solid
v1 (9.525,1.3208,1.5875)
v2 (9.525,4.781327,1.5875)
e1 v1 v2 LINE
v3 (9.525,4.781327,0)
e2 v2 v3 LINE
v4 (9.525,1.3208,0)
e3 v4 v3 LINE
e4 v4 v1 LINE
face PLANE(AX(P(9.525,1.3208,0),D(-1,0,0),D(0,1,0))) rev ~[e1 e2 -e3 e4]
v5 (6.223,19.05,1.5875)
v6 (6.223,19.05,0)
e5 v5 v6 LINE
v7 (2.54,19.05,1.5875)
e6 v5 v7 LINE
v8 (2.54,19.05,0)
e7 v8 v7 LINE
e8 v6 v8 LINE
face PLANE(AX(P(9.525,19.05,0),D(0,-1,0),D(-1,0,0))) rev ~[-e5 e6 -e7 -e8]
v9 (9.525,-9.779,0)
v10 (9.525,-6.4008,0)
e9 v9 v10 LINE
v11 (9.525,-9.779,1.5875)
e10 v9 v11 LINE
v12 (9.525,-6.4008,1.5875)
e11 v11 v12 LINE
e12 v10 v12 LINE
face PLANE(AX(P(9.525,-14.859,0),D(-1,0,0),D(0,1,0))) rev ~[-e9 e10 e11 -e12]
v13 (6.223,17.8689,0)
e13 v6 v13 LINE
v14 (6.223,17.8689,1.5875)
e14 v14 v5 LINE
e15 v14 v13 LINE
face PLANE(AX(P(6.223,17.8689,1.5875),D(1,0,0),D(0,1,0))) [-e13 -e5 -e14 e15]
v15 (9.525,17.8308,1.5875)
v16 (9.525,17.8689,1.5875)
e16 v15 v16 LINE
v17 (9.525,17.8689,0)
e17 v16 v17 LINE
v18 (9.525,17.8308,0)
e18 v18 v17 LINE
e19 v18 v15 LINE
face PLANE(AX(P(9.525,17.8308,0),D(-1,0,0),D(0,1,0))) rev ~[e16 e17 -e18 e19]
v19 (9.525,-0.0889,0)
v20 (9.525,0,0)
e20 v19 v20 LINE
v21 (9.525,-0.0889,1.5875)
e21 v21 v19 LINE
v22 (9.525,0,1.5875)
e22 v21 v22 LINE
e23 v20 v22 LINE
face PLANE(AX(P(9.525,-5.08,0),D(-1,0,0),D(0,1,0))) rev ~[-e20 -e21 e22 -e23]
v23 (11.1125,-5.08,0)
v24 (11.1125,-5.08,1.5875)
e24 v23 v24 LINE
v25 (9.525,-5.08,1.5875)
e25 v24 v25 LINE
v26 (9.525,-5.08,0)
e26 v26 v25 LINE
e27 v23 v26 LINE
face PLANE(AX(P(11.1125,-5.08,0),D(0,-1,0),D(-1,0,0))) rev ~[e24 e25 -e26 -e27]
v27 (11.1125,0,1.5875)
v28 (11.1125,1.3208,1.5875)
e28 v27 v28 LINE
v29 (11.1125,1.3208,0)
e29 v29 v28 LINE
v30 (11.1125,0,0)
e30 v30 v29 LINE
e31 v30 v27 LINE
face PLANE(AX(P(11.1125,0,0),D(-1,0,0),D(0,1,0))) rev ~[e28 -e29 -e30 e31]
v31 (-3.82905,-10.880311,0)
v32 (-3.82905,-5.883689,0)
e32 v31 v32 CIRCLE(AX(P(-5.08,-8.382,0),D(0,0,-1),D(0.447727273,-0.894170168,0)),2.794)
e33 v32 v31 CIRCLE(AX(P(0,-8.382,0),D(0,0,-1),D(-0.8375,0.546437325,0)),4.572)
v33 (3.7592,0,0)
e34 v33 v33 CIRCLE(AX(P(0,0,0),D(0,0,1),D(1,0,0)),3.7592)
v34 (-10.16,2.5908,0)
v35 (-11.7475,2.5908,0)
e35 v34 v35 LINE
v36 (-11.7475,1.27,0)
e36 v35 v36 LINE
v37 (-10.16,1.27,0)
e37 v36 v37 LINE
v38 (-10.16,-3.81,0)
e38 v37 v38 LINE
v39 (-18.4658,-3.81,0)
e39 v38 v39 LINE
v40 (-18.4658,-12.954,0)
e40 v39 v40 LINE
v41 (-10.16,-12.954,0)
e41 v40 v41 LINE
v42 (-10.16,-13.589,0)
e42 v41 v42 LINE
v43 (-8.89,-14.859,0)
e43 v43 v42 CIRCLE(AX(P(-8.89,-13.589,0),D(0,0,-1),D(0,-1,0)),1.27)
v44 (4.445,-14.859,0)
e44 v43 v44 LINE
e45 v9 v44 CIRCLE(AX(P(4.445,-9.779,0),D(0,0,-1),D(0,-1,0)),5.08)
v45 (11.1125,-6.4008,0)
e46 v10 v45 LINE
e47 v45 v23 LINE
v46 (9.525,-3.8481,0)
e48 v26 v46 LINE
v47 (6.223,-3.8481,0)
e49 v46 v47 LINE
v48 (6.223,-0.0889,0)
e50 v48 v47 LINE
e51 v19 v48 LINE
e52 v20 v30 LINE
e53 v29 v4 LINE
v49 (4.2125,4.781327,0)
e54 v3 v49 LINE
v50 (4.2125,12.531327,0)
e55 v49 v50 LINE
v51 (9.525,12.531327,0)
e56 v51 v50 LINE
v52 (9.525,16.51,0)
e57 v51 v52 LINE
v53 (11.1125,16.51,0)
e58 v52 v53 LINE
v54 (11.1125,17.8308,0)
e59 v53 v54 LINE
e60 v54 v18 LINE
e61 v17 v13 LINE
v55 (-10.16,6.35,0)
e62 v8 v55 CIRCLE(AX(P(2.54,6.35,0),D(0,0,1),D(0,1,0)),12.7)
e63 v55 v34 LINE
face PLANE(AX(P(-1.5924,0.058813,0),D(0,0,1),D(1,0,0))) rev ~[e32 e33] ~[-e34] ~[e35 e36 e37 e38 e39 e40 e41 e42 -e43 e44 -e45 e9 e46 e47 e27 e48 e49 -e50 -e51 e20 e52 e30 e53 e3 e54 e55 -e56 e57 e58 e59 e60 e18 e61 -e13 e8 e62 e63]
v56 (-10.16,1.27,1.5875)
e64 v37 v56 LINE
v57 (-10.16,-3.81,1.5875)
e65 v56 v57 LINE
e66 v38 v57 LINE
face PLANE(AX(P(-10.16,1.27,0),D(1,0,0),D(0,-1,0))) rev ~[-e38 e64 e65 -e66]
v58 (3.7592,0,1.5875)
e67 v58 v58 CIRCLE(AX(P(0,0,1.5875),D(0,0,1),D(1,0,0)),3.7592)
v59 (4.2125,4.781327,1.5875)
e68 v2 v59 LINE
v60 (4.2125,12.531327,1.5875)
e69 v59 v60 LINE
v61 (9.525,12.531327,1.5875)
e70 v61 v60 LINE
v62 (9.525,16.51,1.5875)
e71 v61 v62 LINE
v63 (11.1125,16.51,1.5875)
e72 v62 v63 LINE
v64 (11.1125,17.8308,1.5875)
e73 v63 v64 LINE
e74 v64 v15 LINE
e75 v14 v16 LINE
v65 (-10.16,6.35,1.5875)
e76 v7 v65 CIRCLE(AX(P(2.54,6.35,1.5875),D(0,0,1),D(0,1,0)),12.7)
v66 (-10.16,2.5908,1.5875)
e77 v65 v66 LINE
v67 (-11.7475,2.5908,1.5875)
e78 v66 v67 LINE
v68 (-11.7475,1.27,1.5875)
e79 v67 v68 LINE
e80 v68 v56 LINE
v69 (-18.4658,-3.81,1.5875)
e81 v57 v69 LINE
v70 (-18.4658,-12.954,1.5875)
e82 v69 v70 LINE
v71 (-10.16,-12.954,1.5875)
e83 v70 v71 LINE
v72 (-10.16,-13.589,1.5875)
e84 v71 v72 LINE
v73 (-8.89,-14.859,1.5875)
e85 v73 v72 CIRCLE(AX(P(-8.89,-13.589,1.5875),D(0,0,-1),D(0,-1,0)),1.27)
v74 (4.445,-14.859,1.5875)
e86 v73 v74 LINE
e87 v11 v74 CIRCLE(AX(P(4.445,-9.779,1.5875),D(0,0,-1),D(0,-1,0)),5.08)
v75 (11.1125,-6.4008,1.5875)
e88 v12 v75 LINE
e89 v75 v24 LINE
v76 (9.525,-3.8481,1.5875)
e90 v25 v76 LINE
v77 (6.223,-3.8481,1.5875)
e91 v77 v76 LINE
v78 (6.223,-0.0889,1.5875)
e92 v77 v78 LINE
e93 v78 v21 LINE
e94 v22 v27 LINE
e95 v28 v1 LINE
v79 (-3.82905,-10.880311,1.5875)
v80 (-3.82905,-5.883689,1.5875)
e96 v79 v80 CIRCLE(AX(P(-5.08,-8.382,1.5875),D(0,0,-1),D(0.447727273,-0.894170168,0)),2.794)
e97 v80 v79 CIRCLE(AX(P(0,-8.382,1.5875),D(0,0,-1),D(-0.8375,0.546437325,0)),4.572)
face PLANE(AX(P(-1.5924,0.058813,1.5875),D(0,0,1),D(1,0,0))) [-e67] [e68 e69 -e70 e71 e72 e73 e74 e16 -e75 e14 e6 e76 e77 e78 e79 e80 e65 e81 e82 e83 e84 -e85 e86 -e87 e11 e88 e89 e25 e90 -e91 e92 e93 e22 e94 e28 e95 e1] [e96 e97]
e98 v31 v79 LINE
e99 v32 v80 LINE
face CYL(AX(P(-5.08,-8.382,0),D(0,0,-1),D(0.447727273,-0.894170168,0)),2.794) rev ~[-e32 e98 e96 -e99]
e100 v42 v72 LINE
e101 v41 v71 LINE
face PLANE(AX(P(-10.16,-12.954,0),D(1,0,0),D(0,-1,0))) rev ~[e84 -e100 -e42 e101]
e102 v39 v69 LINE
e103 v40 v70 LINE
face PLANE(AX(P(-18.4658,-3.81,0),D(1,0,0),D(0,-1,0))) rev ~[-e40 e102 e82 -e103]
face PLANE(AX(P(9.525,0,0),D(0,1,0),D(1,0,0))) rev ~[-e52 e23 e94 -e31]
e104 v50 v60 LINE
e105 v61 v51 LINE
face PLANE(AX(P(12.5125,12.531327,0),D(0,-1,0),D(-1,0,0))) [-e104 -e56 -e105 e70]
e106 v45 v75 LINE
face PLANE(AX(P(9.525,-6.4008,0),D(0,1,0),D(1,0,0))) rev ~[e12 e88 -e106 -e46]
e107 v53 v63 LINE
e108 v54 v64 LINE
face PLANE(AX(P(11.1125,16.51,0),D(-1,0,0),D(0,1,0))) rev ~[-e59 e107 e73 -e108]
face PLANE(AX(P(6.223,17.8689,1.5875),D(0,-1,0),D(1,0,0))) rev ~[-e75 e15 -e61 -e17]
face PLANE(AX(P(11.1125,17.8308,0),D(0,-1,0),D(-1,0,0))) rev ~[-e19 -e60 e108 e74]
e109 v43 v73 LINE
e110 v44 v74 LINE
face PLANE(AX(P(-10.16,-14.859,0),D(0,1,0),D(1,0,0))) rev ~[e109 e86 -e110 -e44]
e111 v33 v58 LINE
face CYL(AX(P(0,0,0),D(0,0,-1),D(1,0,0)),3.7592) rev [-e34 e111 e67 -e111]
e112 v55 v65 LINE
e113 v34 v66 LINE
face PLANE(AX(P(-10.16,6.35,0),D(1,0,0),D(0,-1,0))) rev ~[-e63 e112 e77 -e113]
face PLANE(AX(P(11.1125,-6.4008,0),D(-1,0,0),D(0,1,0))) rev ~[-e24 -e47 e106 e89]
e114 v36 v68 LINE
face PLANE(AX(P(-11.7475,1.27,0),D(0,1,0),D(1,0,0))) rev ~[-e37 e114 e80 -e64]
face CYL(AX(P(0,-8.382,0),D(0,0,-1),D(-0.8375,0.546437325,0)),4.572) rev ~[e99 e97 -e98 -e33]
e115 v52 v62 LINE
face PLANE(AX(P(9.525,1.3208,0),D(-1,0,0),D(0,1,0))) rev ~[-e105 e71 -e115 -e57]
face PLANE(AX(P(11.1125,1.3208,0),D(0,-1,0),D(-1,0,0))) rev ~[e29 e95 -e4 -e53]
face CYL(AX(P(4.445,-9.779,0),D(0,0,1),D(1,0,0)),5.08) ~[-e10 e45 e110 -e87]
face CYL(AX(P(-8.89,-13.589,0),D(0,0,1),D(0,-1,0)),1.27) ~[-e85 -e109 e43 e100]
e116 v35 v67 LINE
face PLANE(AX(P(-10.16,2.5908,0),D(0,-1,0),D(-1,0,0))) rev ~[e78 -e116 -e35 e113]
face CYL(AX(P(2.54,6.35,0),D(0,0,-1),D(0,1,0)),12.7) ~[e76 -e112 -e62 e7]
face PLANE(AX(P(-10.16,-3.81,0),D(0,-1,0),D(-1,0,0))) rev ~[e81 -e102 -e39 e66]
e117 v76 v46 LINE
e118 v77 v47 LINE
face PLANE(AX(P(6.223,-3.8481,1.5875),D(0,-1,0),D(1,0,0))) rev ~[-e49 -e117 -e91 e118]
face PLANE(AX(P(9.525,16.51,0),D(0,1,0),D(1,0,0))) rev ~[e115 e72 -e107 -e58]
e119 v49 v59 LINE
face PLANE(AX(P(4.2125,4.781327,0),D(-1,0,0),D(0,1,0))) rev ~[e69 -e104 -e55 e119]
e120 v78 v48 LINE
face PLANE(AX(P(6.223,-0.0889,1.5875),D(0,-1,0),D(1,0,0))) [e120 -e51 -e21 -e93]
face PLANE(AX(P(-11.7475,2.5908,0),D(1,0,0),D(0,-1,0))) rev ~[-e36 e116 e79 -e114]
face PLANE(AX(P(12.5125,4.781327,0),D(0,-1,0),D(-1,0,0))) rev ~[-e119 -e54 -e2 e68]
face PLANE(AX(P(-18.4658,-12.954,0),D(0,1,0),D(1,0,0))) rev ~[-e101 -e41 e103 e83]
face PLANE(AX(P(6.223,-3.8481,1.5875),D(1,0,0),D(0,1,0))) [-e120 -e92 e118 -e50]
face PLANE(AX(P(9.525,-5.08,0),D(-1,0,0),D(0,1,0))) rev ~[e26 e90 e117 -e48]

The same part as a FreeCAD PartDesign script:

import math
import FreeCAD as App
import Part
import Sketcher

V = App.Vector
Q = App.Units.Quantity


def edges_at(feature, points):
    """Names of the edges that pass closest to the given points."""
    edges = feature.Shape.Edges
    near = lambda p: min(range(len(edges)), key=lambda i: edges[i].distToShape(Part.Vertex(*p))[0])
    return sorted({f"Edge{near(p) + 1}" for p in points})


def add_polygon(sketch, points):
    """Adds a closed chain of lines whose ends are joined by coincident constraints."""
    first, n = sketch.GeometryCount, len(points)
    for a, b in zip(points, points[1:] + points[:1]):
        sketch.addGeometry(Part.LineSegment(App.Vector(*a, 0), App.Vector(*b, 0)), False)
    for i in range(n):
        sketch.addConstraint(Sketcher.Constraint("Coincident", first + i, 2, first + (i + 1) % n, 1))

doc = App.newDocument("Part")
params = doc.addObject("Spreadsheet::Sheet", "Params")
for row, (alias, value) in enumerate([
    ("sketch1_radius", "0.5 in"),
    ("sketch1_radius2", "0.11 in"),
    ("sketch1_radius3", "0.18 in"),
    ("sketch1_diameter", "0.296 in"),
    ("sketch1_height", "0.2 in"),
    ("pad1_length", "0.0625 in"),
    ("sketch2_width", "0.13 in"),
    ("sketch2_height", "0.148 in"),
    ("sketch3_width", "0.13 in"),
    ("sketch3_height", "0.148 in"),
    ("pocket2_length", "0.0625 in"),
    ("fillet_radius", "0.2 in"),
    ("fillet2_radius", "0.05 in"),
], start=1):
    params.set(f"A{row}", alias)
    params.set(f"B{row}", "=" + value)
    params.setAlias(f"B{row}", alias)

body = doc.addObject("PartDesign::Body", "Body")

# Sketch on XY plane
sketch1 = body.newObject("Sketcher::SketchObject", "Sketch")
sketch1.AttachmentSupport = (doc.getObject("XY_Plane"), [""])
sketch1.MapMode = "FlatFace"
sketch1.addGeometry(Part.LineSegment(V(11.1125, 17.8308, 0), V(9.525, 17.8308, 0)), False)
sketch1.addGeometry(Part.LineSegment(V(9.525, 17.8308, 0), V(9.525, 19.05, 0)), False)
sketch1.addGeometry(Part.LineSegment(V(9.525, 19.05, 0), V(2.54, 19.05, 0)), False)
sketch1.addGeometry(Part.ArcOfCircle(Part.Circle(V(2.54, 6.35, 0), V(0, 0, 1), 12.7), math.radians(90), math.radians(180)), False)
sketch1.addGeometry(Part.LineSegment(V(-10.16, 6.35, 0), V(-10.16, 2.5908, 0)), False)
sketch1.addGeometry(Part.LineSegment(V(-10.16, 2.5908, 0), V(-11.7475, 2.5908, 0)), False)
sketch1.addGeometry(Part.LineSegment(V(-11.7475, 2.5908, 0), V(-11.7475, 1.27, 0)), False)
sketch1.addGeometry(Part.LineSegment(V(-11.7475, 1.27, 0), V(-10.16, 1.27, 0)), False)
sketch1.addGeometry(Part.LineSegment(V(-10.16, 1.27, 0), V(-10.16, -3.81, 0)), False)
sketch1.addGeometry(Part.LineSegment(V(-10.16, -3.81, 0), V(-18.4658, -3.81, 0)), False)
sketch1.addGeometry(Part.LineSegment(V(-18.4658, -3.81, 0), V(-18.4658, -12.954, 0)), False)
sketch1.addGeometry(Part.LineSegment(V(-18.4658, -12.954, 0), V(-10.16, -12.954, 0)), False)
sketch1.addGeometry(Part.LineSegment(V(-10.16, -12.954, 0), V(-10.16, -14.859, 0)), False)
sketch1.addGeometry(Part.LineSegment(V(-10.16, -14.859, 0), V(9.525, -14.859, 0)), False)
sketch1.addGeometry(Part.LineSegment(V(9.525, -14.859, 0), V(9.525, -6.4008, 0)), False)
sketch1.addGeometry(Part.LineSegment(V(9.525, -6.4008, 0), V(11.1125, -6.4008, 0)), False)
sketch1.addGeometry(Part.LineSegment(V(11.1125, -6.4008, 0), V(11.1125, -5.08, 0)), False)
sketch1.addGeometry(Part.LineSegment(V(11.1125, -5.08, 0), V(9.525, -5.08, 0)), False)
sketch1.addGeometry(Part.LineSegment(V(9.525, -5.08, 0), V(9.525, 0, 0)), False)
sketch1.addGeometry(Part.LineSegment(V(9.525, 0, 0), V(11.1125, 0, 0)), False)
sketch1.addGeometry(Part.LineSegment(V(11.1125, 0, 0), V(11.1125, 1.3208, 0)), False)
sketch1.addGeometry(Part.LineSegment(V(11.1125, 1.3208, 0), V(9.525, 1.3208, 0)), False)
sketch1.addGeometry(Part.LineSegment(V(9.525, 1.3208, 0), V(9.525, 16.51, 0)), False)
sketch1.addGeometry(Part.LineSegment(V(9.525, 16.51, 0), V(11.1125, 16.51, 0)), False)
sketch1.addGeometry(Part.LineSegment(V(11.1125, 16.51, 0), V(11.1125, 17.8308, 0)), False)
sketch1.addGeometry(Part.ArcOfCircle(Part.Circle(V(-5.08, -8.382, 0), V(0, 0, 1), 2.794), math.radians(63.402039), math.radians(296.597961)), False)
sketch1.addGeometry(Part.ArcOfCircle(Part.Circle(V(0, -8.382, 0), V(0, 0, 1), 4.572), math.radians(-146.87706), math.radians(146.87706)), False)
sketch1.addGeometry(Part.Circle(V(0, 0, 0), V(0, 0, 1), 3.7592), False)
sketch1.addConstraint(Sketcher.Constraint("Coincident", 0, 2, 1, 1))
sketch1.addConstraint(Sketcher.Constraint("Coincident", 1, 2, 2, 1))
sketch1.addConstraint(Sketcher.Constraint("Tangent", 2, 2, 3, 1))
sketch1.addConstraint(Sketcher.Constraint("Tangent", 3, 2, 4, 1))
sketch1.addConstraint(Sketcher.Constraint("Coincident", 4, 2, 5, 1))
sketch1.addConstraint(Sketcher.Constraint("Coincident", 5, 2, 6, 1))
sketch1.addConstraint(Sketcher.Constraint("Coincident", 6, 2, 7, 1))
sketch1.addConstraint(Sketcher.Constraint("Coincident", 7, 2, 8, 1))
sketch1.addConstraint(Sketcher.Constraint("Coincident", 8, 2, 9, 1))
sketch1.addConstraint(Sketcher.Constraint("Coincident", 9, 2, 10, 1))
sketch1.addConstraint(Sketcher.Constraint("Coincident", 10, 2, 11, 1))
sketch1.addConstraint(Sketcher.Constraint("Coincident", 11, 2, 12, 1))
sketch1.addConstraint(Sketcher.Constraint("Coincident", 12, 2, 13, 1))
sketch1.addConstraint(Sketcher.Constraint("Coincident", 13, 2, 14, 1))
sketch1.addConstraint(Sketcher.Constraint("Coincident", 14, 2, 15, 1))
sketch1.addConstraint(Sketcher.Constraint("Coincident", 15, 2, 16, 1))
sketch1.addConstraint(Sketcher.Constraint("Coincident", 16, 2, 17, 1))
sketch1.addConstraint(Sketcher.Constraint("Coincident", 17, 2, 18, 1))
sketch1.addConstraint(Sketcher.Constraint("Coincident", 18, 2, 19, 1))
sketch1.addConstraint(Sketcher.Constraint("Coincident", 19, 2, 20, 1))
sketch1.addConstraint(Sketcher.Constraint("Coincident", 20, 2, 21, 1))
sketch1.addConstraint(Sketcher.Constraint("Coincident", 21, 2, 22, 1))
sketch1.addConstraint(Sketcher.Constraint("Coincident", 22, 2, 23, 1))
sketch1.addConstraint(Sketcher.Constraint("Coincident", 23, 2, 24, 1))
sketch1.addConstraint(Sketcher.Constraint("Coincident", 24, 2, 0, 1))
sketch1.addConstraint(Sketcher.Constraint("Coincident", 25, 1, 26, 2))
sketch1.addConstraint(Sketcher.Constraint("Coincident", 26, 1, 25, 2))
sketch1.addConstraint(Sketcher.Constraint("Horizontal", 0))
sketch1.addConstraint(Sketcher.Constraint("Vertical", 1))
sketch1.addConstraint(Sketcher.Constraint("Horizontal", 2))
sketch1.addConstraint(Sketcher.Constraint("Vertical", 4))
sketch1.addConstraint(Sketcher.Constraint("Horizontal", 5))
sketch1.addConstraint(Sketcher.Constraint("Vertical", 6))
sketch1.addConstraint(Sketcher.Constraint("Horizontal", 7))
sketch1.addConstraint(Sketcher.Constraint("Vertical", 8))
sketch1.addConstraint(Sketcher.Constraint("Horizontal", 9))
sketch1.addConstraint(Sketcher.Constraint("Vertical", 10))
sketch1.addConstraint(Sketcher.Constraint("Horizontal", 11))
sketch1.addConstraint(Sketcher.Constraint("Vertical", 12))
sketch1.addConstraint(Sketcher.Constraint("Horizontal", 13))
sketch1.addConstraint(Sketcher.Constraint("Vertical", 14))
sketch1.addConstraint(Sketcher.Constraint("Horizontal", 15))
sketch1.addConstraint(Sketcher.Constraint("Vertical", 16))
sketch1.addConstraint(Sketcher.Constraint("Horizontal", 17))
sketch1.addConstraint(Sketcher.Constraint("Vertical", 18))
sketch1.addConstraint(Sketcher.Constraint("Horizontal", 19))
sketch1.addConstraint(Sketcher.Constraint("Vertical", 20))
sketch1.addConstraint(Sketcher.Constraint("Horizontal", 21))
sketch1.addConstraint(Sketcher.Constraint("Vertical", 22))
sketch1.addConstraint(Sketcher.Constraint("Horizontal", 23))
sketch1.addConstraint(Sketcher.Constraint("Vertical", 24))
sketch1.addConstraint(Sketcher.Constraint("Coincident", 27, 3, -1, 1))
sketch1.addConstraint(Sketcher.Constraint("PointOnObject", 26, 3, -2))
sketch1.addConstraint(Sketcher.Constraint("PointOnObject", 18, 2, -1))
sketch1.addConstraint(Sketcher.Constraint("Horizontal", 25, 3, 26, 3))
sketch1.addConstraint(Sketcher.Constraint("Vertical", 4, 2, 7, 2))
sketch1.addConstraint(Sketcher.Constraint("Vertical", 8, 2, 11, 2))
sketch1.addConstraint(Sketcher.Constraint("Vertical", 1, 2, 13, 2))
sketch1.addConstraint(Sketcher.Constraint("Vertical", 14, 2, 17, 2))
sketch1.addConstraint(Sketcher.Constraint("Vertical", 16, 2, 19, 2))
sketch1.addConstraint(Sketcher.Constraint("Vertical", 18, 2, 21, 2))
sketch1.addConstraint(Sketcher.Constraint("Vertical", 20, 2, 23, 2))
sketch1.addConstraint(Sketcher.Constraint("Equal", 0, 5))
sketch1.addConstraint(Sketcher.Constraint("Equal", 6, 16))
sketch1.addConstraint(Sketcher.Constraint("Equal", 8, 18))
sketch1.addConstraint(Sketcher.Constraint("Equal", 16, 20))
sketch1.addConstraint(Sketcher.Constraint("Equal", 20, 24))
sketch1.addConstraint(Sketcher.Constraint("Radius", 3, Q("0.5 in")))
sketch1.addConstraint(Sketcher.Constraint("Radius", 25, Q("0.11 in")))
sketch1.addConstraint(Sketcher.Constraint("Radius", 26, Q("0.18 in")))
sketch1.addConstraint(Sketcher.Constraint("Diameter", 27, Q("0.296 in")))
sketch1.addConstraint(Sketcher.Constraint("DistanceY", 8, 2, 8, 1, Q("0.2 in")))
sketch1.addConstraint(Sketcher.Constraint("DistanceY", 10, 2, 10, 1, Q("0.36 in")))
sketch1.addConstraint(Sketcher.Constraint("DistanceX", -1, 1, 3, 3, Q("0.1 in")))
sketch1.addConstraint(Sketcher.Constraint("DistanceX", 25, 3, -1, 1, Q("0.2 in")))
sketch1.addConstraint(Sketcher.Constraint("DistanceY", 6, 2, 3, 2, Q("0.2 in")))
sketch1.addConstraint(Sketcher.Constraint("DistanceY", 22, 2, 1, 2, Q("0.1 in")))
sketch1.addConstraint(Sketcher.Constraint("DistanceX", 0, 2, 0, 1, Q("0.0625 in")))
sketch1.addConstraint(Sketcher.Constraint("DistanceX", 2, 2, 2, 1, Q("0.275 in")))
sketch1.addConstraint(Sketcher.Constraint("DistanceX", 9, 2, 9, 1, Q("0.327 in")))
sketch1.addConstraint(Sketcher.Constraint("DistanceY", 1, 1, 1, 2, Q("0.048 in")))
sketch1.addConstraint(Sketcher.Constraint("DistanceY", 12, 2, 12, 1, Q("0.075 in")))
sketch1.addConstraint(Sketcher.Constraint("DistanceY", 14, 1, 14, 2, Q("0.333 in")))
sketch1.addConstraint(Sketcher.Constraint("DistanceY", 25, 3, -1, 1, Q("0.33 in")))
sketch1.setExpression("Constraints[67]", "Params.sketch1_radius")
sketch1.setExpression("Constraints[68]", "Params.sketch1_radius2")
sketch1.setExpression("Constraints[69]", "Params.sketch1_radius3")
sketch1.setExpression("Constraints[70]", "Params.sketch1_diameter")
sketch1.setExpression("Constraints[71]", "Params.sketch1_height")
pad1 = body.newObject("PartDesign::Pad", "Pad")
pad1.Profile = sketch1
pad1.setExpression("Length", "Params.pad1_length")

# Sketch on XY plane
sketch2 = body.newObject("Sketcher::SketchObject", "Sketch001")
sketch2.AttachmentSupport = (doc.getObject("XY_Plane"), [""])
sketch2.MapMode = "FlatFace"
sketch2.AttachmentOffset = App.Placement(V(0, 0, 0.0625 * 25.4), App.Rotation())
add_polygon(sketch2, [(6.223, -0.0889), (6.223, -3.8481), (9.525, -3.8481), (9.525, -0.0889)])  # lines 0-3
sketch2.addConstraint(Sketcher.Constraint("Vertical", 0))
sketch2.addConstraint(Sketcher.Constraint("Horizontal", 1))
sketch2.addConstraint(Sketcher.Constraint("Vertical", 2))
sketch2.addConstraint(Sketcher.Constraint("Horizontal", 3))
sketch2.addConstraint(Sketcher.Constraint("DistanceX", 1, 1, 1, 2, Q("0.13 in")))
sketch2.addConstraint(Sketcher.Constraint("DistanceY", 0, 2, 0, 1, Q("0.148 in")))
sketch2.addConstraint(Sketcher.Constraint("DistanceX", -1, 1, 0, 2, Q("0.245 in")))
sketch2.addConstraint(Sketcher.Constraint("DistanceY", 0, 2, -1, 1, Q("0.1515 in")))
sketch2.setExpression("Constraints[8]", "Params.sketch2_width")
sketch2.setExpression("Constraints[9]", "Params.sketch2_height")
pocket1 = body.newObject("PartDesign::Pocket", "Pocket")
pocket1.Profile = sketch2
pocket1.Type = "UpToFirst"

# Sketch on XY plane
sketch3 = body.newObject("Sketcher::SketchObject", "Sketch002")
sketch3.AttachmentSupport = (doc.getObject("XY_Plane"), [""])
sketch3.MapMode = "FlatFace"
sketch3.AttachmentOffset = App.Placement(V(0, 0, 0.0625 * 25.4), App.Rotation())
add_polygon(sketch3, [(6.223, 21.6281), (6.223, 17.8689), (9.525, 17.8689), (9.525, 21.6281)])  # lines 0-3
sketch3.addConstraint(Sketcher.Constraint("Vertical", 0))
sketch3.addConstraint(Sketcher.Constraint("Horizontal", 1))
sketch3.addConstraint(Sketcher.Constraint("Vertical", 2))
sketch3.addConstraint(Sketcher.Constraint("Horizontal", 3))
sketch3.addConstraint(Sketcher.Constraint("DistanceX", 1, 1, 1, 2, Q("0.13 in")))
sketch3.addConstraint(Sketcher.Constraint("DistanceY", 0, 2, 0, 1, Q("0.148 in")))
sketch3.addConstraint(Sketcher.Constraint("DistanceX", -1, 1, 0, 2, Q("0.245 in")))
sketch3.addConstraint(Sketcher.Constraint("DistanceY", -1, 1, 0, 2, Q("0.7035 in")))
sketch3.setExpression("Constraints[8]", "Params.sketch3_width")
sketch3.setExpression("Constraints[9]", "Params.sketch3_height")
pocket2 = body.newObject("PartDesign::Pocket", "Pocket001")
pocket2.Profile = sketch3
pocket2.setExpression("Length", "Params.pocket2_length")

# Sketch on XY plane
sketch4 = body.newObject("Sketcher::SketchObject", "Sketch003")
sketch4.AttachmentSupport = (doc.getObject("XY_Plane"), [""])
sketch4.MapMode = "FlatFace"
add_polygon(sketch4, [(12.5125, 12.531327), (12.5125, 4.781327), (4.2125, 4.781327), (4.2125, 12.531327)])  # lines 0-3
sketch4.addConstraint(Sketcher.Constraint("Vertical", 0))
sketch4.addConstraint(Sketcher.Constraint("Horizontal", 1))
sketch4.addConstraint(Sketcher.Constraint("Vertical", 2))
sketch4.addConstraint(Sketcher.Constraint("Horizontal", 3))
sketch4.addConstraint(Sketcher.Constraint("DistanceX", 1, 2, 1, 1, Q("8.3 mm")))
sketch4.addConstraint(Sketcher.Constraint("DistanceY", 0, 2, 0, 1, Q("7.75 mm")))
sketch4.addConstraint(Sketcher.Constraint("DistanceX", -1, 1, 0, 2, Q("12.5125 mm")))
sketch4.addConstraint(Sketcher.Constraint("DistanceY", -1, 1, 0, 2, Q("4.781327 mm")))
pocket3 = body.newObject("PartDesign::Pocket", "Pocket002")
pocket3.Profile = sketch4
pocket3.Type = "UpToFirst"
pocket3.Reversed = True
doc.recompute()

fillet = body.newObject("PartDesign::Fillet", "Fillet")
fillet.Base = (pocket3, edges_at(pocket3, [(9.525, -14.859, 0.794)]))
fillet.setExpression("Radius", "Params.fillet_radius")
doc.recompute()

fillet2 = body.newObject("PartDesign::Fillet", "Fillet001")
fillet2.Base = (fillet, edges_at(fillet, [(-10.16, -14.859, 0.794)]))
fillet2.setExpression("Radius", "Params.fillet2_radius")

doc.recompute()
